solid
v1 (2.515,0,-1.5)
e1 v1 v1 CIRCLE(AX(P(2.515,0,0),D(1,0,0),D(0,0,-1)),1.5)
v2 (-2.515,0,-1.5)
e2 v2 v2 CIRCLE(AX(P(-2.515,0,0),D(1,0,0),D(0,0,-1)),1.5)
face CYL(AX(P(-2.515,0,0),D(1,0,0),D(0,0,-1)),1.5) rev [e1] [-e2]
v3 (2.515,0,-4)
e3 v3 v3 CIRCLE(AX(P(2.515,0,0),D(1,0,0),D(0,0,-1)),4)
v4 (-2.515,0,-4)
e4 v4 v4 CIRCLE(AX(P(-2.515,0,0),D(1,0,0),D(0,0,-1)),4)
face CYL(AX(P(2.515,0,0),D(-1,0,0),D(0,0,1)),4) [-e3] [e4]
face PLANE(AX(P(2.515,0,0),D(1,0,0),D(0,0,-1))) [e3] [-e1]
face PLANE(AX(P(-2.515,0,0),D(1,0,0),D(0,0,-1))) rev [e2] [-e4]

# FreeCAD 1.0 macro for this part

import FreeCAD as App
import Part
import Sketcher
from FreeCAD import Vector

doc = App.newDocument("Part")
body = doc.addObject("PartDesign::Body", "Body")

sketch1 = body.newObject("Sketcher::SketchObject", "Sketch")
sketch1.AttachmentSupport = (doc.getObject("YZ_Plane"), [""])
sketch1.MapMode = "FlatFace"
sketch1.addGeometry(Part.Circle(Vector(0, 0, 0), Vector(0, 0, 1), 4), False)
sketch1.addConstraint([
    Sketcher.Constraint("Coincident", 0, 3, -1, 1),
    Sketcher.Constraint("Diameter", 0, 8.0),
])
pad1 = body.newObject("PartDesign::Pad", "Pad")
pad1.Profile = sketch1
pad1.Length = 5.03
pad1.Midplane = True

sketch2 = body.newObject("Sketcher::SketchObject", "Sketch001")
sketch2.AttachmentSupport = (doc.getObject("YZ_Plane"), [""])
sketch2.MapMode = "FlatFace"
sketch2.AttachmentOffset = App.Placement(Vector(0, 0, 2.515), App.Rotation())
sketch2.addGeometry(Part.Circle(Vector(0, 0, 0), Vector(0, 0, 1), 1.5), False)
sketch2.addConstraint([
    Sketcher.Constraint("Coincident", 0, 3, -1, 1),
    Sketcher.Constraint("Diameter", 0, 3.0),
])
pocket1 = body.newObject("PartDesign::Pocket", "Pocket")
pocket1.Profile = sketch2
pocket1.Type = "ThroughAll"

doc.recompute()
